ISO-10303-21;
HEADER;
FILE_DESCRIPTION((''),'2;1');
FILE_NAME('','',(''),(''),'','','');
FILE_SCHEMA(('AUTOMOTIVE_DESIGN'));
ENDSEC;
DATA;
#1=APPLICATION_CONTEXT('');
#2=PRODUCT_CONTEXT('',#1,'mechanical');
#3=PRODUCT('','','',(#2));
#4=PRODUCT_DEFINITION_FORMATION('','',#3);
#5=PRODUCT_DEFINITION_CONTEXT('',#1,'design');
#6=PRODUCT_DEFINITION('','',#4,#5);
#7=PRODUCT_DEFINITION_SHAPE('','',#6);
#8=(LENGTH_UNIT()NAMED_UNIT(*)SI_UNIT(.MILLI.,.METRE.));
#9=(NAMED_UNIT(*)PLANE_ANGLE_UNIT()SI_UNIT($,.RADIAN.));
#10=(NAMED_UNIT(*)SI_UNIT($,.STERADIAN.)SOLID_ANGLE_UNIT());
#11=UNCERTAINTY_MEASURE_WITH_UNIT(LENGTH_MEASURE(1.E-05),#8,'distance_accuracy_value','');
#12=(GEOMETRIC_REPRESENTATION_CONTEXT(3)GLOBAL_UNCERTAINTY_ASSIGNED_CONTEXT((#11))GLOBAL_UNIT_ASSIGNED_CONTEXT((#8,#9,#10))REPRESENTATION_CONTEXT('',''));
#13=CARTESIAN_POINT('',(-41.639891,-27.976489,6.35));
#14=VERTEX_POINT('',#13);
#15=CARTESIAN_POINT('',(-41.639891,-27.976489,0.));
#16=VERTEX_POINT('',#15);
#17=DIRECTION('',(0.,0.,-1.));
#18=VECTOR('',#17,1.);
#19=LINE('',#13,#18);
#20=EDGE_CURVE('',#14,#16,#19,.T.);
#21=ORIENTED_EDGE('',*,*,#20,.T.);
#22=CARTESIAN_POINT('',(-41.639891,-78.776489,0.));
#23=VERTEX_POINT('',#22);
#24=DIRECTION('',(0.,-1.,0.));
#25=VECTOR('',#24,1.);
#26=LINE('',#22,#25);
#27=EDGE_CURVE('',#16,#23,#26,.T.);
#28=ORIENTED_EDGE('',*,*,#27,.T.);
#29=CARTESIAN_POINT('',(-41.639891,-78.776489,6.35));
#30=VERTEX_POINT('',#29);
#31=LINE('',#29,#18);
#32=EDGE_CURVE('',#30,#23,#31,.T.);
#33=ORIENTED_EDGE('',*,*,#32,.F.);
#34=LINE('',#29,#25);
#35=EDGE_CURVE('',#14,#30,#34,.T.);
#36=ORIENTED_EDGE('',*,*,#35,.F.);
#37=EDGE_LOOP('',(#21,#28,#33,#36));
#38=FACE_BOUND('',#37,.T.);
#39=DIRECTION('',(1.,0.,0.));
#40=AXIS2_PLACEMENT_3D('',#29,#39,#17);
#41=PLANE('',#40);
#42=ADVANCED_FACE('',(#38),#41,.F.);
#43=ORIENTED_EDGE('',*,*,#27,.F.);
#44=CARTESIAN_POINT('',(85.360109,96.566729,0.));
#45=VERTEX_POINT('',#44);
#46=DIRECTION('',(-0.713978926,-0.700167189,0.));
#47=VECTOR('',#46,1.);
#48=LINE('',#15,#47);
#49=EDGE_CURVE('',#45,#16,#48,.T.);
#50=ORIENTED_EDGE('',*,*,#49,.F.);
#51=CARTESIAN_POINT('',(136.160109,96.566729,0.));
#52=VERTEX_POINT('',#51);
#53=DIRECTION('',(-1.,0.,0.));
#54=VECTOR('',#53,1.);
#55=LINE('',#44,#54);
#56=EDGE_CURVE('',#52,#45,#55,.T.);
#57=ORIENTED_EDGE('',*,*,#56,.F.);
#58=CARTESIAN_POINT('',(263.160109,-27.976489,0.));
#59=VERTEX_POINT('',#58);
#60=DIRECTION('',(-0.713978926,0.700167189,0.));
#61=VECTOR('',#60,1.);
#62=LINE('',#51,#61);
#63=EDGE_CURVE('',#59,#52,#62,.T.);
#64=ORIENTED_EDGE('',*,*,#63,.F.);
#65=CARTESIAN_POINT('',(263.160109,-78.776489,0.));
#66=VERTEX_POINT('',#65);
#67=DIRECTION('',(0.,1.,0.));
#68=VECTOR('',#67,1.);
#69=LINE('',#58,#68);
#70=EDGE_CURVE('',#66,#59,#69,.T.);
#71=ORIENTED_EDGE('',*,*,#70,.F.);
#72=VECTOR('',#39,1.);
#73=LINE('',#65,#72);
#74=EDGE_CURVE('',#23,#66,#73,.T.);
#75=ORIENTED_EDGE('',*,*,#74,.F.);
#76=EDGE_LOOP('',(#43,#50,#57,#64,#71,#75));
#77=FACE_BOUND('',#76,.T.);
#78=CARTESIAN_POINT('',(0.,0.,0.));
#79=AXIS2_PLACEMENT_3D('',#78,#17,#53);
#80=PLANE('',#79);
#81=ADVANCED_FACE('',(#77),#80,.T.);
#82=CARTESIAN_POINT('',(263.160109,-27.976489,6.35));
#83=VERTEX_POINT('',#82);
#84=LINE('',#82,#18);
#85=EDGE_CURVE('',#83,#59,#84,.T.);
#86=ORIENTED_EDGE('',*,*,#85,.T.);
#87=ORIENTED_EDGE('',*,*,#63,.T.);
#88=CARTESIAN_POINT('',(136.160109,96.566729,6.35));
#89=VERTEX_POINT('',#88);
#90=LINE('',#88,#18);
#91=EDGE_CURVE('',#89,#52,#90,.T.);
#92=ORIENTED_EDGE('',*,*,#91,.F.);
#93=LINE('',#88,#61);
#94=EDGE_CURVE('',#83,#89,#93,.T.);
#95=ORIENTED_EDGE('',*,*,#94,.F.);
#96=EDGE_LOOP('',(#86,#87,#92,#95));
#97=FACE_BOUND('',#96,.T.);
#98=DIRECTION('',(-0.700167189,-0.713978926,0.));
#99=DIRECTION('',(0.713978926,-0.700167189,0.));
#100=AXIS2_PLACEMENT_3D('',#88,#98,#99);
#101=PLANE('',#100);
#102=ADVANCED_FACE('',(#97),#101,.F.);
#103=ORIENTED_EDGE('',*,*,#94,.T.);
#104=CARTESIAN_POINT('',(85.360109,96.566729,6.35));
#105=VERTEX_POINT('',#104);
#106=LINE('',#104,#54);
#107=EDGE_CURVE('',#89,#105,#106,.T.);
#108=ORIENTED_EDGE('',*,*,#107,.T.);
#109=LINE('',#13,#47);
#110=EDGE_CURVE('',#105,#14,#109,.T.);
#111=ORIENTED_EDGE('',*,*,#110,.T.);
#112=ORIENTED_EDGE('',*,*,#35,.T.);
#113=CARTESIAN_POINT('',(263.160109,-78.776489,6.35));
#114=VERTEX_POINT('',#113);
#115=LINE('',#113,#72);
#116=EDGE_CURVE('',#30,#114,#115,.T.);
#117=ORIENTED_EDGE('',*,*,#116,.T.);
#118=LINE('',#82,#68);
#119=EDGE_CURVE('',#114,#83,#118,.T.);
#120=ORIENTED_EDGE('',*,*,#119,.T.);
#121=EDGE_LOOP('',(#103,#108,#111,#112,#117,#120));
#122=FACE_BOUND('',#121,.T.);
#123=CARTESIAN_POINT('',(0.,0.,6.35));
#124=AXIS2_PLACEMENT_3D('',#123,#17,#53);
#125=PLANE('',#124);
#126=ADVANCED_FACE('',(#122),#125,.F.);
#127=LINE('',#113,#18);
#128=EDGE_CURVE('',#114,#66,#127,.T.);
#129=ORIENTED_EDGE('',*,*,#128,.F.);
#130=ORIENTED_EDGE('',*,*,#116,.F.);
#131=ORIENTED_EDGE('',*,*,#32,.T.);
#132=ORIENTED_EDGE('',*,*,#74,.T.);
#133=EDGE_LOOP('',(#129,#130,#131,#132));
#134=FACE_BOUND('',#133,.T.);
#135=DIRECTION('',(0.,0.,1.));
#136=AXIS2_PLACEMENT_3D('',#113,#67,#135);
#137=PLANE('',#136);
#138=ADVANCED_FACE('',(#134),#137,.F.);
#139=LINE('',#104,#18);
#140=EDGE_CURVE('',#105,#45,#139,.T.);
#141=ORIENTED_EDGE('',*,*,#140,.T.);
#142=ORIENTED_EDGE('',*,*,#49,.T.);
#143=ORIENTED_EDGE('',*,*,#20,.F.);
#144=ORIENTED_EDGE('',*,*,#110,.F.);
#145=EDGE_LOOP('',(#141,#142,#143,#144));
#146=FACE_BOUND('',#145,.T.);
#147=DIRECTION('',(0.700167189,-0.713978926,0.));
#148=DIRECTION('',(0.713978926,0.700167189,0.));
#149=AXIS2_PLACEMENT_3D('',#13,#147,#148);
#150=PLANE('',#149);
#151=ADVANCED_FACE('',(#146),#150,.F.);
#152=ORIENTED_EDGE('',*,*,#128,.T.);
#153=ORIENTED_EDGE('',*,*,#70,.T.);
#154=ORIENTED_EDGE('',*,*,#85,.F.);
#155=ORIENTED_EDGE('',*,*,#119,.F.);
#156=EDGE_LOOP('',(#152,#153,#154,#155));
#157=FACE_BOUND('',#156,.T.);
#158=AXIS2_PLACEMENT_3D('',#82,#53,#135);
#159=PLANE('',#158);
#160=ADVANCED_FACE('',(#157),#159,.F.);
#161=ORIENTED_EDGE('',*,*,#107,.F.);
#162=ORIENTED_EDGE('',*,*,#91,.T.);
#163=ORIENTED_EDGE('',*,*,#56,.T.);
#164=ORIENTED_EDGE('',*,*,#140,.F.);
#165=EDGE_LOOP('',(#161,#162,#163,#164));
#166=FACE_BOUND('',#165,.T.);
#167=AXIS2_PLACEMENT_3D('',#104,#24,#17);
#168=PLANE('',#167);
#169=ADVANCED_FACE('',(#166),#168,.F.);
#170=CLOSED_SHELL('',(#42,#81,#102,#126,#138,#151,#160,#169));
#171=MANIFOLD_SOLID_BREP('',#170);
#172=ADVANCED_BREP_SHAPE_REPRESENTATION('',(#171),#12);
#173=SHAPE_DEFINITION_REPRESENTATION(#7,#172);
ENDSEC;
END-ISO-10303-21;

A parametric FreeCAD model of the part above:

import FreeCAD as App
import Part
import Sketcher
from FreeCAD import Vector
Q = App.Units.Quantity

doc = App.newDocument("Part")
params = doc.addObject("Spreadsheet::Sheet", "Params")
for row, (alias, value) in enumerate([
    ("sketch1_width", "2 in"),
    ("sketch1_width2", "12 in"),
    ("pad1_length", "0.25 in"),
], start=1):
    params.set(f"A{row}", alias)
    params.set(f"B{row}", "=" + value)
    params.setAlias(f"B{row}", alias)

body = doc.addObject("PartDesign::Body", "Body")

sketch1 = body.newObject("Sketcher::SketchObject", "Sketch")
sketch1.AttachmentSupport = (doc.getObject("XY_Plane"), [""])
sketch1.MapMode = "FlatFace"
sketch1.addGeometry(Part.LineSegment(Vector(136, 97, 0), Vector(85, 97, 0)), False)
sketch1.addGeometry(Part.LineSegment(Vector(85, 97, 0), Vector(-42, -28, 0)), False)
sketch1.addGeometry(Part.LineSegment(Vector(-42, -28, 0), Vector(-42, -79, 0)), False)
sketch1.addGeometry(Part.LineSegment(Vector(-42, -79, 0), Vector(263, -79, 0)), False)
sketch1.addGeometry(Part.LineSegment(Vector(263, -79, 0), Vector(263, -28, 0)), False)
sketch1.addGeometry(Part.LineSegment(Vector(263, -28, 0), Vector(136, 97, 0)), False)
sketch1.addConstraint(Sketcher.Constraint("Coincident", 0, 2, 1, 1))
sketch1.addConstraint(Sketcher.Constraint("Coincident", 1, 2, 2, 1))
sketch1.addConstraint(Sketcher.Constraint("Coincident", 2, 2, 3, 1))
sketch1.addConstraint(Sketcher.Constraint("Coincident", 3, 2, 4, 1))
sketch1.addConstraint(Sketcher.Constraint("Coincident", 4, 2, 5, 1))
sketch1.addConstraint(Sketcher.Constraint("Coincident", 5, 2, 0, 1))
sketch1.addConstraint(Sketcher.Constraint("Horizontal", 0))
sketch1.addConstraint(Sketcher.Constraint("Vertical", 2))
sketch1.addConstraint(Sketcher.Constraint("Horizontal", 3))
sketch1.addConstraint(Sketcher.Constraint("Vertical", 4))
sketch1.addConstraint(Sketcher.Constraint("Horizontal", 1, 2, 4, 2))
sketch1.addConstraint(Sketcher.Constraint("Equal", 0, 2))
sketch1.addConstraint(Sketcher.Constraint("Equal", 1, 5))
sketch1.addConstraint(Sketcher.Constraint("DistanceX", 0, 2, 0, 1, Q("2 in")))
sketch1.addConstraint(Sketcher.Constraint("DistanceX", 3, 1, 3, 2, Q("12 in")))
sketch1.addConstraint(Sketcher.Constraint("Distance", 1, Q("177.876398 mm")))
sketch1.addConstraint(Sketcher.Constraint("DistanceX", -1, 1, 0, 2, Q("85.360109 mm")))
sketch1.addConstraint(Sketcher.Constraint("DistanceY", -1, 1, 0, 2, Q("96.566729 mm")))
sketch1.setExpression("Constraints[13]", "Params.sketch1_width")
sketch1.setExpression("Constraints[14]", "Params.sketch1_width2")
pad1 = body.newObject("PartDesign::Pad", "Pad")
pad1.Profile = sketch1
pad1.setExpression("Length", "Params.pad1_length")

doc.recompute()
